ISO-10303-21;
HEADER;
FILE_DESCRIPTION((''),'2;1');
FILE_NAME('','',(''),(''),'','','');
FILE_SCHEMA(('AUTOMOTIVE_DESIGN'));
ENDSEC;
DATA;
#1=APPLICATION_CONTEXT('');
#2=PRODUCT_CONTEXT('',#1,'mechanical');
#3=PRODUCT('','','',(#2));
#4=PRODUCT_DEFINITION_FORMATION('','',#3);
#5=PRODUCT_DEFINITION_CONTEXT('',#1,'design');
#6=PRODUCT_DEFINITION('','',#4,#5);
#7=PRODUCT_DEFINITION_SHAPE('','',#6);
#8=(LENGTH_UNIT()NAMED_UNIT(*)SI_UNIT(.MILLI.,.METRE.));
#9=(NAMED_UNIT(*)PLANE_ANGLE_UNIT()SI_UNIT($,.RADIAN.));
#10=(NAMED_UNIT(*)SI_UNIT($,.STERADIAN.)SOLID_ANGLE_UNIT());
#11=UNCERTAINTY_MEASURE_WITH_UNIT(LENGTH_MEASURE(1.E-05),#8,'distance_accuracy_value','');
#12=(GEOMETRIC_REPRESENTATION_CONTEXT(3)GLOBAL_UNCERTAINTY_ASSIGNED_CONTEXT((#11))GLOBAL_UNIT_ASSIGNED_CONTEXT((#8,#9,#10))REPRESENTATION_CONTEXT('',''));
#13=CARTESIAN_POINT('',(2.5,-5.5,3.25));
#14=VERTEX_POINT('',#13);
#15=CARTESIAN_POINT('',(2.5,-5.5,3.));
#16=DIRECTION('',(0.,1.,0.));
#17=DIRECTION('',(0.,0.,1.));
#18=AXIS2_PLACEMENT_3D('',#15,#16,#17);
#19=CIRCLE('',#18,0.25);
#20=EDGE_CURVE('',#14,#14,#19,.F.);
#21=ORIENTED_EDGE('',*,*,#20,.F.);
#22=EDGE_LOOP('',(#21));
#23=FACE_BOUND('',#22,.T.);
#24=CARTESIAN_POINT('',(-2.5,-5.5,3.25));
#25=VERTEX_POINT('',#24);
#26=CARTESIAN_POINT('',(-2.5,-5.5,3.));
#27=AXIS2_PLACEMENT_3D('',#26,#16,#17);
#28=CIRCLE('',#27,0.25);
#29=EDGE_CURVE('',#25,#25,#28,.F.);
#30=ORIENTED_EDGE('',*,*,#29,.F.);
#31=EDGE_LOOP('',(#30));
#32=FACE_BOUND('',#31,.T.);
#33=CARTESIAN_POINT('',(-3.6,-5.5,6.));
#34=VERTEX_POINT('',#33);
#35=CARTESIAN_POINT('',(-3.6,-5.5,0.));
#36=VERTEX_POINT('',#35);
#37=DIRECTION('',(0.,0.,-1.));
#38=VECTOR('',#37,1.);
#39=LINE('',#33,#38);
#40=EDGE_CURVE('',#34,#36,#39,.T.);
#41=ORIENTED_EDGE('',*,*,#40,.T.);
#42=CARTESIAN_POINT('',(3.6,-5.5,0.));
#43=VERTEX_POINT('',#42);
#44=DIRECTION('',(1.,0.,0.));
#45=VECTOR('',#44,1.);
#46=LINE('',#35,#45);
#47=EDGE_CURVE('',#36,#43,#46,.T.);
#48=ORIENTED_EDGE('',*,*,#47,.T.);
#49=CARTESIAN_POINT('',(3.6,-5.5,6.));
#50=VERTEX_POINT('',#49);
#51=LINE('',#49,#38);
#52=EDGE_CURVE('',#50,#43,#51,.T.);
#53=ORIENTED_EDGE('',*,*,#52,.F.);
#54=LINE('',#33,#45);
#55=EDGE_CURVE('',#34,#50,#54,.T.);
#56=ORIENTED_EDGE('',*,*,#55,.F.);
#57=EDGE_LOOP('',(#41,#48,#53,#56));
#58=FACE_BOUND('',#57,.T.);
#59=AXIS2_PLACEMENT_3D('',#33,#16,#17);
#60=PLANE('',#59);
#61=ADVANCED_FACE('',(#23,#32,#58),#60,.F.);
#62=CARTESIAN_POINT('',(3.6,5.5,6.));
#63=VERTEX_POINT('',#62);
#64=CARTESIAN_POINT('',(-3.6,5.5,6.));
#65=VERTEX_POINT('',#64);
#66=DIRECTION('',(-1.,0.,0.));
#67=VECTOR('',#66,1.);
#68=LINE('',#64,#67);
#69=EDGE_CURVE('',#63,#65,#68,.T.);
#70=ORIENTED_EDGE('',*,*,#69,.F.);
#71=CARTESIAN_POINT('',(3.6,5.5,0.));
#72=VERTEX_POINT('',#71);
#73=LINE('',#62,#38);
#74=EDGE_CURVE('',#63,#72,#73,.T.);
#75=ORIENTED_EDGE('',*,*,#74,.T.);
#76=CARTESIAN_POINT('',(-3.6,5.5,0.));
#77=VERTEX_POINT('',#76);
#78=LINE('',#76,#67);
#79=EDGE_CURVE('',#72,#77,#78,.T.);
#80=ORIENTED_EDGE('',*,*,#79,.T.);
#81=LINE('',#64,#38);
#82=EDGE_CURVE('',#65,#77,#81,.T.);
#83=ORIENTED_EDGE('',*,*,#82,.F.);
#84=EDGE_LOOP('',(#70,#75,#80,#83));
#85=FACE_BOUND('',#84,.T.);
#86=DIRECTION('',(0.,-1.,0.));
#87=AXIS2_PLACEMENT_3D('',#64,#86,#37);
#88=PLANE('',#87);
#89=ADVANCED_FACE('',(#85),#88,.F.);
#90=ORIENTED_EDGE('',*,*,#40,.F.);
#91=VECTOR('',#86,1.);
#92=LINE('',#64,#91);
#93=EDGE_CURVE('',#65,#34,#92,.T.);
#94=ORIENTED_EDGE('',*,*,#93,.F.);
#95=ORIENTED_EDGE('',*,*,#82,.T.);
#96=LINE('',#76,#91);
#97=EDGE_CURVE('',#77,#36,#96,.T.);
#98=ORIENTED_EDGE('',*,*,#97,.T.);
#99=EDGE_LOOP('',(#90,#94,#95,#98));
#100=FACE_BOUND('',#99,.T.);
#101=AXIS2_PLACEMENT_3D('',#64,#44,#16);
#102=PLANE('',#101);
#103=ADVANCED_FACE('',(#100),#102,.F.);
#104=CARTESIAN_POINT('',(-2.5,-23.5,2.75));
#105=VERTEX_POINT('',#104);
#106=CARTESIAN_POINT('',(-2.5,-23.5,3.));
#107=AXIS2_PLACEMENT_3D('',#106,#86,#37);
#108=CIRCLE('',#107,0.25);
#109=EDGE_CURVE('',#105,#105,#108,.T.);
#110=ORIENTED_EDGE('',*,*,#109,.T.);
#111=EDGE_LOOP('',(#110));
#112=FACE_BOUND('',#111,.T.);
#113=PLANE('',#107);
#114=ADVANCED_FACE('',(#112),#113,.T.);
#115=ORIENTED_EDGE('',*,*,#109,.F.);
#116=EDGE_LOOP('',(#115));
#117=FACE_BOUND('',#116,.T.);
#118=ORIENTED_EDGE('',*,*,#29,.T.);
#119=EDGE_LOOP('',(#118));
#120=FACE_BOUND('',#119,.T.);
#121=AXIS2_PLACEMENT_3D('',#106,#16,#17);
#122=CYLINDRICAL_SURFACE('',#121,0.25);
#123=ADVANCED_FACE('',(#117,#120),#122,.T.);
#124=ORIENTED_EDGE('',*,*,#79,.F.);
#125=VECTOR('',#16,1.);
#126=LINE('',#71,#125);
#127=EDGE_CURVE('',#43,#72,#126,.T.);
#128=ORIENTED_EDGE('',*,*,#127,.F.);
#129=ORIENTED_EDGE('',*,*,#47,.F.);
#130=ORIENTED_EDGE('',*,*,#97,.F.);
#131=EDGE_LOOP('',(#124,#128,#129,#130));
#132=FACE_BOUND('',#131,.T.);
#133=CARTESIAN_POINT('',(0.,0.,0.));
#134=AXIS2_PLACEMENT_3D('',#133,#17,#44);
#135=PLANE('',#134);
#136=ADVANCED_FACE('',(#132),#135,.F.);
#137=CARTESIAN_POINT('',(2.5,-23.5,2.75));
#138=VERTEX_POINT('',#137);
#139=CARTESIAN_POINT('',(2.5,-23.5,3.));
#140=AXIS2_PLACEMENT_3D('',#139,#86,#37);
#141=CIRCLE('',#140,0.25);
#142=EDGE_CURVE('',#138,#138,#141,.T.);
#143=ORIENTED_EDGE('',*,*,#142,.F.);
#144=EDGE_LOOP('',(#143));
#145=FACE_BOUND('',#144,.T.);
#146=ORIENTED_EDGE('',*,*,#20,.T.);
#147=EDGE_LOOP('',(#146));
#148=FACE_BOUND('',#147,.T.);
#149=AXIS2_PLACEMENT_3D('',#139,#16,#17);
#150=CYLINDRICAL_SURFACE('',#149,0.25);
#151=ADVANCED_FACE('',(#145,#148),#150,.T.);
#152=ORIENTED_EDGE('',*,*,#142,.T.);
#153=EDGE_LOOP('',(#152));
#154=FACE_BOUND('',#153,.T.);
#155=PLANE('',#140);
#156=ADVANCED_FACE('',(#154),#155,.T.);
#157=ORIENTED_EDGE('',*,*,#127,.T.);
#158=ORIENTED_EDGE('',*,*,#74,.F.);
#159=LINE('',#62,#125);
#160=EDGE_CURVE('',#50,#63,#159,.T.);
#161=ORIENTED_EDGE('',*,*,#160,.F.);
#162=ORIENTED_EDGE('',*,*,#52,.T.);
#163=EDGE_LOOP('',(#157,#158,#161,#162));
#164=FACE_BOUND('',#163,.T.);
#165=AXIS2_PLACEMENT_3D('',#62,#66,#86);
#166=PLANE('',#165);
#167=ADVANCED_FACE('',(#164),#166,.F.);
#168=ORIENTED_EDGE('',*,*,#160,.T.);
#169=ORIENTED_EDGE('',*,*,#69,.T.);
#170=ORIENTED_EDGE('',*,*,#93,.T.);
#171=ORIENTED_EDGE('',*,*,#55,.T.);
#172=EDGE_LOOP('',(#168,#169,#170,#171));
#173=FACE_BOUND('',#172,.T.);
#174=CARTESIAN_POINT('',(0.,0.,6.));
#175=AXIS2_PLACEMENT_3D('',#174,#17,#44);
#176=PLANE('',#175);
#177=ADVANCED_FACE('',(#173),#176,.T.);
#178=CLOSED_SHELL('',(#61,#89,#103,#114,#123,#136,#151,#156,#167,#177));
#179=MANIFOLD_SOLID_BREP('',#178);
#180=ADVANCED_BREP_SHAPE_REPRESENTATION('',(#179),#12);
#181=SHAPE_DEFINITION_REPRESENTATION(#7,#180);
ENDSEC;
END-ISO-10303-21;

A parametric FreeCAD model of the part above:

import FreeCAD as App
import Part
import Sketcher
from FreeCAD import Vector


def add_polygon(sketch, points):
    """Adds a closed chain of lines whose ends are joined by coincident constraints."""
    first, n = sketch.GeometryCount, len(points)
    for a, b in zip(points, points[1:] + points[:1]):
        sketch.addGeometry(Part.LineSegment(App.Vector(*a, 0), App.Vector(*b, 0)), False)
    for i in range(n):
        sketch.addConstraint(Sketcher.Constraint("Coincident", first + i, 2, first + (i + 1) % n, 1))

doc = App.newDocument("Part")
body = doc.addObject("PartDesign::Body", "Body")

# Sketch on XY plane
sketch1 = body.newObject("Sketcher::SketchObject", "Sketch")
sketch1.AttachmentSupport = (doc.getObject("XY_Plane"), [""])
sketch1.MapMode = "FlatFace"
add_polygon(sketch1, [(-4, 6), (-4, -6), (4, -6), (4, 6)])  # lines 0-3
sketch1.addConstraint([
    Sketcher.Constraint("Vertical", 0),
    Sketcher.Constraint("Horizontal", 1),
    Sketcher.Constraint("Vertical", 2),
    Sketcher.Constraint("Horizontal", 3),
    Sketcher.Constraint("Symmetric", 0, 2, 2, 2, -1, 1),
    Sketcher.Constraint("DistanceY", 0, 2, 0, 1, 11.0),
    Sketcher.Constraint("DistanceX", 1, 1, 1, 2, 7.2),
])
pad1 = body.newObject("PartDesign::Pad", "Pad")
pad1.Profile = sketch1
pad1.Length = 6

# Sketch on XZ plane
sketch2 = body.newObject("Sketcher::SketchObject", "Sketch001")
sketch2.AttachmentSupport = (doc.getObject("XZ_Plane"), [""])
sketch2.MapMode = "FlatFace"
sketch2.AttachmentOffset = App.Placement(Vector(0, 0, 5.5), App.Rotation())
sketch2.addGeometry([
    Part.Circle(Vector(-2.5, 3, 0), Vector(0, 0, 1), 0.25),
    Part.Circle(Vector(2.5, 3, 0), Vector(0, 0, 1), 0.25),
], False)
sketch2.addConstraint([
    Sketcher.Constraint("Equal", 0, 1),
    Sketcher.Constraint("Symmetric", 0, 3, 1, 3, -2),
    Sketcher.Constraint("Diameter", 0, 0.5),
    Sketcher.Constraint("DistanceY", -1, 1, 0, 3, 3.0),
    Sketcher.Constraint("DistanceX", 0, 3, 1, 3, 5.0),
])
pad2 = body.newObject("PartDesign::Pad", "Pad001")
pad2.Profile = sketch2
pad2.Length = 18

doc.recompute()
